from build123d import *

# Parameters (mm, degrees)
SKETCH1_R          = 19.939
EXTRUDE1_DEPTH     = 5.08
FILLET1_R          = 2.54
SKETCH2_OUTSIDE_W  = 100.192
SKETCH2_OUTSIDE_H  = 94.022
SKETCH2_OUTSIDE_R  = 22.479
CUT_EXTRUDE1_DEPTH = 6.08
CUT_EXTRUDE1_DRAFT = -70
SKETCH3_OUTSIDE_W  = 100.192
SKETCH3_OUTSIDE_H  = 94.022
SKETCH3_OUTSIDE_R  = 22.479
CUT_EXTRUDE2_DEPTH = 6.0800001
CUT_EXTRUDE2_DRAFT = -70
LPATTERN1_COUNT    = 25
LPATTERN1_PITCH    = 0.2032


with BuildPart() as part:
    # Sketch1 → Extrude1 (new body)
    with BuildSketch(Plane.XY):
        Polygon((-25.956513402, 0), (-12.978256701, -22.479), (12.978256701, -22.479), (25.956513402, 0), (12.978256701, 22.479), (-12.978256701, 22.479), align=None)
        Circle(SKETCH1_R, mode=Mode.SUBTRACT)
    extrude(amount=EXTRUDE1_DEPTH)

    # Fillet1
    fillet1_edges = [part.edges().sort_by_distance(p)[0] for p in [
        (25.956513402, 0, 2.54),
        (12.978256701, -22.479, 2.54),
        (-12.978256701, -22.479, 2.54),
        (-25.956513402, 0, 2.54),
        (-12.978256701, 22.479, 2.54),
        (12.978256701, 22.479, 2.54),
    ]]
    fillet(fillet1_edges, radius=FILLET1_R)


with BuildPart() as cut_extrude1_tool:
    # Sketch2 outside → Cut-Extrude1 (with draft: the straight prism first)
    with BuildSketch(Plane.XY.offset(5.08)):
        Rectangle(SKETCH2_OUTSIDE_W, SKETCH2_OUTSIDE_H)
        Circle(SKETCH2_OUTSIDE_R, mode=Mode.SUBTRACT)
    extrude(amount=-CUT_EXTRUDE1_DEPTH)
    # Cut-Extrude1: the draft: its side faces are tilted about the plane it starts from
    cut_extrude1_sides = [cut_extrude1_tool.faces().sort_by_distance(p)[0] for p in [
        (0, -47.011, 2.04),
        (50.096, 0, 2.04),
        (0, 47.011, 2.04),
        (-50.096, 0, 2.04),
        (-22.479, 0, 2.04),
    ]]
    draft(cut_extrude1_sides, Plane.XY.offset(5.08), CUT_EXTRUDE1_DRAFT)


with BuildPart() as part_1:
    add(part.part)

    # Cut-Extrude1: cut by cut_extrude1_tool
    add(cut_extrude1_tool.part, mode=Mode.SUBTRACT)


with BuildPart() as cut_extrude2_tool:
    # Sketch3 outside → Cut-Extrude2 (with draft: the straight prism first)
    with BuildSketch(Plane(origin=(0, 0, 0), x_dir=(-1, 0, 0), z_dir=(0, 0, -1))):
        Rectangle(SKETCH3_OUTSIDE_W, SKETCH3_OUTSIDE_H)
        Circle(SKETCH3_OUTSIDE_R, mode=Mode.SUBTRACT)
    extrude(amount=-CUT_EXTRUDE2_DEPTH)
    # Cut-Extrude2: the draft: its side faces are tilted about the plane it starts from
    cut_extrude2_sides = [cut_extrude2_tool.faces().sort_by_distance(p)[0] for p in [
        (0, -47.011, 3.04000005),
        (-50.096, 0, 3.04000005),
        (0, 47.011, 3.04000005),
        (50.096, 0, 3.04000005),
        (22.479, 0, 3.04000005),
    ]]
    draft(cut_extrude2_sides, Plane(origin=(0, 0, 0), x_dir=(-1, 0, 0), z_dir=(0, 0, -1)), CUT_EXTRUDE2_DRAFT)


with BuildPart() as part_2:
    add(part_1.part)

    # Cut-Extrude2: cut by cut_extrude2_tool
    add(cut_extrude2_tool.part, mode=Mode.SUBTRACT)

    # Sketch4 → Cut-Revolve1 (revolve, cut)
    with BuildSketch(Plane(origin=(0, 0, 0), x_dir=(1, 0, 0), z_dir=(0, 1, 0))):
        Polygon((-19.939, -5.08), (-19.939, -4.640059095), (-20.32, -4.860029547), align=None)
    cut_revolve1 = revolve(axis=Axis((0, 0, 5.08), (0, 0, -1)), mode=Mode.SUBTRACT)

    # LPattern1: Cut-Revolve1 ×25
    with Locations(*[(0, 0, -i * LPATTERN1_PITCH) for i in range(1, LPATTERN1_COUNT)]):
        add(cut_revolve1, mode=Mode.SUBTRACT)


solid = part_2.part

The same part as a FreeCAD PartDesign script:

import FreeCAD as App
import Part
import Sketcher
Q = App.Units.Quantity


def edges_at(feature, points):
    """Names of the edges that pass closest to the given points."""
    edges = feature.Shape.Edges
    near = lambda p: min(range(len(edges)), key=lambda i: edges[i].distToShape(Part.Vertex(*p))[0])
    return sorted({f"Edge{near(p) + 1}" for p in points})


def faces_at(feature, points):
    """Names of the faces that lie closest to the given points."""
    faces = feature.Shape.Faces
    near = lambda p: min(range(len(faces)), key=lambda i: faces[i].distToShape(Part.Vertex(*p))[0])
    return sorted({f"Face{near(p) + 1}" for p in points})


def add_polygon(sketch, points):
    """Adds a closed chain of lines whose ends are joined by coincident constraints."""
    first, n = sketch.GeometryCount, len(points)
    for a, b in zip(points, points[1:] + points[:1]):
        sketch.addGeometry(Part.LineSegment(App.Vector(*a, 0), App.Vector(*b, 0)), False)
    for i in range(n):
        sketch.addConstraint(Sketcher.Constraint("Coincident", first + i, 2, first + (i + 1) % n, 1))

doc = App.newDocument("Part")
body = doc.addObject("PartDesign::Body", "Body")

# Sketch on XY plane
sketch1 = body.newObject("Sketcher::SketchObject", "Sketch")
sketch1.AttachmentSupport = (doc.getObject("XY_Plane"), [""])
sketch1.MapMode = "FlatFace"
add_polygon(sketch1, [(-26, 0), (-13, -22), (13, -22), (26, 0), (13, 22), (-13, 22)])  # lines 0-5
sketch1.addGeometry(Part.Circle(App.Vector(0, 0, 0), App.Vector(0, 0, 1), 20), False)  # 6
sketch1.addConstraint([
    Sketcher.Constraint("Horizontal", 1),
    Sketcher.Constraint("Horizontal", 4),
    Sketcher.Constraint("Coincident", 6, 3, -1, 1),
    Sketcher.Constraint("Symmetric", 0, 2, 3, 2, -1, 1),
    Sketcher.Constraint("Symmetric", 2, 2, 5, 2, -1, 1),
    Sketcher.Constraint("PointOnObject", 2, 2, -1),
    Sketcher.Constraint("Parallel", 2, 5),
    Sketcher.Constraint("Vertical", 1, 2, 3, 2),
    Sketcher.Constraint("Diameter", 6, Q("1.57 in")),
    Sketcher.Constraint("Angle", 0, Q("-60 deg")),
    Sketcher.Constraint("DistanceY", 1, 2, 3, 2, Q("1.77 in")),
    Sketcher.Constraint("DistanceX", 1, 1, 1, 2, Q("25.956513 mm")),
])
pad1 = body.newObject("PartDesign::Pad", "Pad")
pad1.Profile = sketch1
pad1.Length = Q("0.2 in")
doc.recompute()

fillet = body.newObject("PartDesign::Fillet", "Fillet")
fillet.Base = (pad1, edges_at(pad1, [
    (25.957, 0, 2.54),
    (12.978, -22.479, 2.54),
    (-12.978, -22.479, 2.54),
    (-25.957, 0, 2.54),
    (-12.978, 22.479, 2.54),
    (12.978, 22.479, 2.54),
]))
fillet.Radius = Q("0.1 in")
body2 = doc.addObject("PartDesign::Body", "Body001")

# Sketch on XY plane
sketch2 = body2.newObject("Sketcher::SketchObject", "Sketch001")
sketch2.AttachmentSupport = (doc.getObject("XY_Plane001"), [""])
sketch2.MapMode = "FlatFace"
sketch2.AttachmentOffset = App.Placement(App.Vector(0, 0, 0.2 * 25.4), App.Rotation())
add_polygon(sketch2, [(-50, 47), (-50, -47), (50, -47), (50, 47)])  # lines 0-3
sketch2.addGeometry(Part.Circle(App.Vector(0, 0, 0), App.Vector(0, 0, 1), 22), False)  # 4
sketch2.addConstraint([
    Sketcher.Constraint("Vertical", 0),
    Sketcher.Constraint("Horizontal", 1),
    Sketcher.Constraint("Vertical", 2),
    Sketcher.Constraint("Horizontal", 3),
    Sketcher.Constraint("Coincident", 4, 3, -1, 1),
    Sketcher.Constraint("Symmetric", 0, 2, 2, 2, -1, 1),
    Sketcher.Constraint("Diameter", 4, Q("1.77 in")),
    Sketcher.Constraint("DistanceX", 1, 1, 1, 2, Q("100.192 mm")),
    Sketcher.Constraint("DistanceY", 0, 2, 0, 1, Q("94.022 mm")),
])
pad2 = body2.newObject("PartDesign::Pad", "Pad001")
pad2.Profile = sketch2
pad2.Length = 6.08
pad2.Reversed = True
doc.recompute()

datumplane = body2.newObject("PartDesign::Plane", "DatumPlane")
datumplane.AttachmentSupport = (doc.getObject("XY_Plane001"), [""])
datumplane.MapMode = "FlatFace"
datumplane.AttachmentOffset = App.Placement(App.Vector(0, 0, 0.2 * 25.4), App.Rotation())
draft = body2.newObject("PartDesign::Draft", "Draft")
draft.Base = (pad2, faces_at(pad2, [
    (0, -47.011, 2.04),
    (50.096, 0, 2.04),
    (0, 47.011, 2.04),
    (-50.096, 0, 2.04),
    (-22.479, 0, 2.04),
]))
draft.NeutralPlane = (datumplane, [""])
draft.Angle = 70
draft.Reversed = True
doc.recompute()

boolean = body.newObject("PartDesign::Boolean", "Boolean")
boolean.Type = "Cut"
boolean.addObjects([body2])
body3 = doc.addObject("PartDesign::Body", "Body002")

# Sketch on XY plane
sketch3 = body3.newObject("Sketcher::SketchObject", "Sketch002")
sketch3.AttachmentSupport = (doc.getObject("XY_Plane002"), [""])
sketch3.MapMode = "FlatFace"
add_polygon(sketch3, [(50, 47), (50, -47), (-50, -47), (-50, 47)])  # lines 0-3
sketch3.addGeometry(Part.Circle(App.Vector(0, 0, 0), App.Vector(0, 0, 1), 22), False)  # 4
sketch3.addConstraint([
    Sketcher.Constraint("Vertical", 0),
    Sketcher.Constraint("Horizontal", 1),
    Sketcher.Constraint("Vertical", 2),
    Sketcher.Constraint("Horizontal", 3),
    Sketcher.Constraint("Coincident", 4, 3, -1, 1),
    Sketcher.Constraint("Symmetric", 0, 2, 2, 2, -1, 1),
    Sketcher.Constraint("Diameter", 4, Q("1.77 in")),
    Sketcher.Constraint("DistanceX", 1, 2, 1, 1, Q("100.192 mm")),
    Sketcher.Constraint("DistanceY", 0, 2, 0, 1, Q("94.022 mm")),
])
pad3 = body3.newObject("PartDesign::Pad", "Pad002")
pad3.Profile = sketch3
pad3.Length = 6.08
doc.recompute()

draft2 = body3.newObject("PartDesign::Draft", "Draft001")
draft2.Base = (pad3, faces_at(pad3, [
    (0, -47.011, 3.04),
    (-50.096, 0, 3.04),
    (0, 47.011, 3.04),
    (50.096, 0, 3.04),
    (22.479, 0, 3.04),
]))
draft2.NeutralPlane = (doc.getObject("XY_Plane002"), [""])
draft2.Angle = 70
draft2.Reversed = False
doc.recompute()

boolean2 = body.newObject("PartDesign::Boolean", "Boolean001")
boolean2.Type = "Cut"
boolean2.addObjects([body3])

# Sketch on XZ plane
sketch4 = body.newObject("Sketcher::SketchObject", "Sketch003")
sketch4.AttachmentSupport = (doc.getObject("XZ_Plane"), [""])
sketch4.MapMode = "FlatFace"
add_polygon(sketch4, [(-19.94, 5.08), (-19.94, 4.64), (-20.32, 4.86)])  # lines 0-2
sketch4.addConstraint([
    Sketcher.Constraint("Vertical", 0),
    Sketcher.Constraint("Equal", 1, 2),
    Sketcher.Constraint("Angle", 1, Q("150 deg")),
    Sketcher.Constraint("DistanceX", 1, 2, -1, 1, Q("0.8 in")),
    Sketcher.Constraint("DistanceY", -1, 1, 2, 2, Q("0.2 in")),
    Sketcher.Constraint("DistanceX", 0, 2, -1, 1, Q("0.785 in")),
])
groove = body.newObject("PartDesign::Groove", "Groove")
groove.Profile = sketch4
groove.ReferenceAxis = (sketch4, ["V_Axis"])
groove.Angle = 360
doc.recompute()

linearpattern = body.newObject("PartDesign::LinearPattern", "LinearPattern")
linearpattern.Originals = [groove]
linearpattern.Direction = (doc.getObject("Z_Axis"), [""])
linearpattern.Mode = "offset"
linearpattern.Offset = Q("0.008 in")
linearpattern.Occurrences = 25
linearpattern.Reversed = True
body.Tip = linearpattern

doc.recompute()
